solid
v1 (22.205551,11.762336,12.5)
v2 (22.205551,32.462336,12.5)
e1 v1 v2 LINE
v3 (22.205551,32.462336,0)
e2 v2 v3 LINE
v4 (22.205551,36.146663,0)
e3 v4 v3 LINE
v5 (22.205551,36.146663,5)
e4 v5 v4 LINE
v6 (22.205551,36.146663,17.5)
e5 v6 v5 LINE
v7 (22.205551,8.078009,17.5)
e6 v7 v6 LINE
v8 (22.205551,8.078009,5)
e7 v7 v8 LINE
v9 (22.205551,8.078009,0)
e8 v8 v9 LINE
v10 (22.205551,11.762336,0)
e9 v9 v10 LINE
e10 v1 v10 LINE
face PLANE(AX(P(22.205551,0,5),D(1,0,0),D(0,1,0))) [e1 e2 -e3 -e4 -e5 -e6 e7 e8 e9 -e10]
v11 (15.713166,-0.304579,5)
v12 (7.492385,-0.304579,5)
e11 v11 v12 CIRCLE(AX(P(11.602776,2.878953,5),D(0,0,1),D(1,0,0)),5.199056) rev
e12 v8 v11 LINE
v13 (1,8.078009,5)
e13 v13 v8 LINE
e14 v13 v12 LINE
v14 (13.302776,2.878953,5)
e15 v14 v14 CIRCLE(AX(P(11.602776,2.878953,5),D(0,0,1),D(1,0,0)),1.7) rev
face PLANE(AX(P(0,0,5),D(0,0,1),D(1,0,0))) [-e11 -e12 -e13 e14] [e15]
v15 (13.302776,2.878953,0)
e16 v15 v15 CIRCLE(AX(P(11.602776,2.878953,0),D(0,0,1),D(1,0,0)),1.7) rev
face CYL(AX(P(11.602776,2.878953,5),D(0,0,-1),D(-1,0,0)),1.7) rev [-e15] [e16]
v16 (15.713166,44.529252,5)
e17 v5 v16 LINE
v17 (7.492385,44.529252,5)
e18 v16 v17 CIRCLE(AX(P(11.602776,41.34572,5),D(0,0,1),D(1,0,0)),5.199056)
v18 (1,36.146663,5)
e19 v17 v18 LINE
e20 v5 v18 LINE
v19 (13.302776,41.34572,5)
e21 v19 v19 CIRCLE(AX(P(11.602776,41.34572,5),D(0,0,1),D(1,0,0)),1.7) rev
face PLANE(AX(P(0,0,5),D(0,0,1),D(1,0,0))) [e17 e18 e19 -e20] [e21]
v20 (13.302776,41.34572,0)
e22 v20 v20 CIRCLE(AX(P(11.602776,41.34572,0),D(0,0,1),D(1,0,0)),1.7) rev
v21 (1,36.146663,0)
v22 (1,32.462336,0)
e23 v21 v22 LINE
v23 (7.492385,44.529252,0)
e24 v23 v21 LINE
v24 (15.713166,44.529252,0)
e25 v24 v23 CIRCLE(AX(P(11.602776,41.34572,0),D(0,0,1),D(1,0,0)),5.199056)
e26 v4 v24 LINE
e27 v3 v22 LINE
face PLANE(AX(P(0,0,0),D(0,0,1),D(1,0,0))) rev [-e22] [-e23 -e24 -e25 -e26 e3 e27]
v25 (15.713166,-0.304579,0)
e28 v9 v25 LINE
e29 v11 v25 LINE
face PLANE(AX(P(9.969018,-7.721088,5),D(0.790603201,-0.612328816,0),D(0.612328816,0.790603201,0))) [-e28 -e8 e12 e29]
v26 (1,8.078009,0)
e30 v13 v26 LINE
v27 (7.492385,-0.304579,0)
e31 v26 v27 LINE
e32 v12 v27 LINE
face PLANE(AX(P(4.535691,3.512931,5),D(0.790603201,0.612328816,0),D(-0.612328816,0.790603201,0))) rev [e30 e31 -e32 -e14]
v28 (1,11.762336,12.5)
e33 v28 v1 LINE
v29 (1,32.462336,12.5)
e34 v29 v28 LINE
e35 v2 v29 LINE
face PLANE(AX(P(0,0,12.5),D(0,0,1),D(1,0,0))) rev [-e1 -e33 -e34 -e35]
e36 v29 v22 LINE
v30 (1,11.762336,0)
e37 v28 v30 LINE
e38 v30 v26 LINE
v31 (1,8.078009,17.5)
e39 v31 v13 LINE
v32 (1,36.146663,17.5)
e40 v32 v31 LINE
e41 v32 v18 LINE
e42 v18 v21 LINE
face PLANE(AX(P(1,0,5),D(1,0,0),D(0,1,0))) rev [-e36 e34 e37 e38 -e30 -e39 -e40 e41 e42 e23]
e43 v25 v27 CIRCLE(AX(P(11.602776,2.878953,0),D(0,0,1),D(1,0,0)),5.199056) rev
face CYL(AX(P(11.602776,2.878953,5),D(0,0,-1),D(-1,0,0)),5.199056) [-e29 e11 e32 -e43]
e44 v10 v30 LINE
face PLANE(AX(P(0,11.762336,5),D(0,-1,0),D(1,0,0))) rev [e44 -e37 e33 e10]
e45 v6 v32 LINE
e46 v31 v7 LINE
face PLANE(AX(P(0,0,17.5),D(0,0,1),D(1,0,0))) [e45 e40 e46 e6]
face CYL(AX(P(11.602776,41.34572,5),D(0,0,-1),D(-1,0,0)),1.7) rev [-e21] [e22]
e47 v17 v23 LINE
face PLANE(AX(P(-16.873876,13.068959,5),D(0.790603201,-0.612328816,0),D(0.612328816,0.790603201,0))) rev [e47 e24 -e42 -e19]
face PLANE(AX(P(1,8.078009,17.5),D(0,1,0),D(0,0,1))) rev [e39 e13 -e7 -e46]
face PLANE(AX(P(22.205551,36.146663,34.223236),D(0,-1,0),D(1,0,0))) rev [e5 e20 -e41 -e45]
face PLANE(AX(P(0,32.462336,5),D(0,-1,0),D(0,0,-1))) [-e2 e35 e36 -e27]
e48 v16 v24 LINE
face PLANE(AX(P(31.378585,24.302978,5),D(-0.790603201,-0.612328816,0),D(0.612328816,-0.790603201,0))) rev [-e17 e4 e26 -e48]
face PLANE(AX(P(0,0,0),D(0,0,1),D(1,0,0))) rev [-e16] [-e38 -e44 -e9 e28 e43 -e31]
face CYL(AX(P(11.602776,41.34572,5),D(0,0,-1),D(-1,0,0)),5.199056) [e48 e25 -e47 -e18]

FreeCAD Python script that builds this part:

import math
import FreeCAD as App
import Part
import Sketcher
from FreeCAD import Vector
Q = App.Units.Quantity

doc = App.newDocument("Part")
body = doc.addObject("PartDesign::Body", "Body")

sketch1 = doc.addObject("Sketcher::SketchObject", "Sketch")
body.addObject(sketch1)
sketch1.AttachmentSupport = (doc.XY_Plane, [""])
sketch1.MapMode = "FlatFace"
sketch1.addGeometry([
    Part.LineSegment(Vector(7.5, 44.5, 0), Vector(1, 36.1, 0)),
    Part.LineSegment(Vector(1, 36.1, 0), Vector(1, 32.5, 0)),
    Part.LineSegment(Vector(1, 32.5, 0), Vector(22.2, 32.5, 0)),
    Part.LineSegment(Vector(22.2, 32.5, 0), Vector(22.2, 36.1, 0)),
    Part.LineSegment(Vector(22.2, 36.1, 0), Vector(15.7, 44.5, 0)),
    Part.ArcOfCircle(Part.Circle(Vector(11.6, 41.3, 0), Vector(0, 0, 1), 5.2), math.radians(38), math.radians(142)),
    Part.Circle(Vector(11.6, 41.3, 0), Vector(0, 0, 1), 1.7),
], False)
sketch1.addConstraint([
    Sketcher.Constraint("Coincident", 0, 2, 1, 1),
    Sketcher.Constraint("Coincident", 1, 2, 2, 1),
    Sketcher.Constraint("Coincident", 2, 2, 3, 1),
    Sketcher.Constraint("Coincident", 3, 2, 4, 1),
    Sketcher.Constraint("Tangent", 4, 2, 5, 1),
    Sketcher.Constraint("Tangent", 5, 2, 0, 1),
    Sketcher.Constraint("Vertical", 1),
    Sketcher.Constraint("Horizontal", 2),
    Sketcher.Constraint("Vertical", 3),
    Sketcher.Constraint("Coincident", 6, 3, 5, 3),
    Sketcher.Constraint("Horizontal", 0, 2, 3, 2),
    Sketcher.Constraint("Horizontal", 4, 2, 5, 2),
    Sketcher.Constraint("Diameter", 6, Q("3.4 mm")),
    Sketcher.Constraint("DistanceX", -1, 1, 0, 2, Q("1 mm")),
    Sketcher.Constraint("Radius", 5, Q("5.199056 mm")),
    Sketcher.Constraint("DistanceX", 2, 1, 2, 2, Q("21.205551 mm")),
    Sketcher.Constraint("DistanceY", 1, 2, 1, 1, Q("3.684327 mm")),
    Sketcher.Constraint("DistanceY", -1, 1, 5, 3, Q("41.34572 mm")),
    Sketcher.Constraint("DistanceY", -1, 1, 4, 2, Q("44.529252 mm")),
])
pad1 = doc.addObject("PartDesign::Pad", "Pad")
body.addObject(pad1)
pad1.Profile = sketch1
pad1.Length = 5
body2 = doc.addObject("PartDesign::Body", "Body001")

sketch2 = doc.addObject("Sketcher::SketchObject", "Sketch001")
body2.addObject(sketch2)
sketch2.AttachmentSupport = (doc.getObject("XY_Plane001"), [""])
sketch2.MapMode = "FlatFace"
sketch2.addGeometry([
    Part.LineSegment(Vector(1, 11.8, 0), Vector(1, 8.1, 0)),
    Part.LineSegment(Vector(1, 8.1, 0), Vector(7.5, -0.3, 0)),
    Part.ArcOfCircle(Part.Circle(Vector(11.6, 2.9, 0), Vector(0, 0, 1), 5.2), math.radians(-142), math.radians(-38)),
    Part.LineSegment(Vector(15.7, -0.3, 0), Vector(22.2, 8.1, 0)),
    Part.LineSegment(Vector(22.2, 8.1, 0), Vector(22.2, 11.8, 0)),
    Part.LineSegment(Vector(22.2, 11.8, 0), Vector(1, 11.8, 0)),
    Part.Circle(Vector(11.6, 2.9, 0), Vector(0, 0, 1), 1.7),
], False)
sketch2.addConstraint([
    Sketcher.Constraint("Coincident", 0, 2, 1, 1),
    Sketcher.Constraint("Tangent", 1, 2, 2, 1),
    Sketcher.Constraint("Tangent", 2, 2, 3, 1),
    Sketcher.Constraint("Coincident", 3, 2, 4, 1),
    Sketcher.Constraint("Coincident", 4, 2, 5, 1),
    Sketcher.Constraint("Coincident", 5, 2, 0, 1),
    Sketcher.Constraint("Vertical", 0),
    Sketcher.Constraint("Vertical", 4),
    Sketcher.Constraint("Horizontal", 5),
    Sketcher.Constraint("Coincident", 6, 3, 2, 3),
    Sketcher.Constraint("Horizontal", 1, 2, 2, 2),
    Sketcher.Constraint("Horizontal", 0, 2, 3, 2),
    Sketcher.Constraint("Diameter", 6, Q("3.4 mm")),
    Sketcher.Constraint("DistanceX", -1, 1, 0, 2, Q("1 mm")),
    Sketcher.Constraint("Radius", 2, Q("5.199056 mm")),
    Sketcher.Constraint("DistanceX", 5, 2, 5, 1, Q("21.205551 mm")),
    Sketcher.Constraint("DistanceY", 0, 2, 0, 1, Q("3.684327 mm")),
    Sketcher.Constraint("DistanceY", -1, 1, 0, 2, Q("8.078009 mm")),
    Sketcher.Constraint("DistanceY", 1, 2, -1, 1, Q("0.304579 mm")),
])
pad2 = doc.addObject("PartDesign::Pad", "Pad001")
body2.addObject(pad2)
pad2.Profile = sketch2
pad2.Length = 5
body.AllowCompound = True
doc.recompute()

boolean = doc.addObject("PartDesign::Boolean", "Boolean")
body.addObject(boolean)
boolean.Type = "Fuse"
boolean.addObjects([body2])

sketch3 = doc.addObject("Sketcher::SketchObject", "Sketch002")
body.addObject(sketch3)
sketch3.AttachmentSupport = (doc.XY_Plane, [""])
sketch3.MapMode = "FlatFace"
sketch3.AttachmentOffset = App.Placement(Vector(0, 0, 5), App.Rotation())
sketch3.addGeometry([
    Part.LineSegment(Vector(1, 11.8, 0), Vector(1, 8.1, 0)),
    Part.LineSegment(Vector(1, 8.1, 0), Vector(22.2, 8.1, 0)),
    Part.LineSegment(Vector(22.2, 8.1, 0), Vector(22.2, 11.8, 0)),
    Part.LineSegment(Vector(22.2, 11.8, 0), Vector(1, 11.8, 0)),
    Part.LineSegment(Vector(1, 36.1, 0), Vector(1, 32.5, 0)),
    Part.LineSegment(Vector(1, 32.5, 0), Vector(22.2, 32.5, 0)),
    Part.LineSegment(Vector(22.2, 32.5, 0), Vector(22.2, 36.1, 0)),
    Part.LineSegment(Vector(22.2, 36.1, 0), Vector(1, 36.1, 0)),
], False)
sketch3.addConstraint([
    Sketcher.Constraint("Coincident", 0, 2, 1, 1),
    Sketcher.Constraint("Coincident", 1, 2, 2, 1),
    Sketcher.Constraint("Coincident", 2, 2, 3, 1),
    Sketcher.Constraint("Coincident", 3, 2, 0, 1),
    Sketcher.Constraint("Coincident", 4, 2, 5, 1),
    Sketcher.Constraint("Coincident", 5, 2, 6, 1),
    Sketcher.Constraint("Coincident", 6, 2, 7, 1),
    Sketcher.Constraint("Coincident", 7, 2, 4, 1),
    Sketcher.Constraint("Vertical", 0),
    Sketcher.Constraint("Horizontal", 1),
    Sketcher.Constraint("Vertical", 2),
    Sketcher.Constraint("Horizontal", 3),
    Sketcher.Constraint("Vertical", 4),
    Sketcher.Constraint("Horizontal", 5),
    Sketcher.Constraint("Vertical", 6),
    Sketcher.Constraint("Horizontal", 7),
    Sketcher.Constraint("Vertical", 3, 2, 4, 2),
    Sketcher.Constraint("Vertical", 2, 2, 5, 2),
    Sketcher.Constraint("Equal", 2, 4),
    Sketcher.Constraint("DistanceX", -1, 1, 0, 2, Q("1 mm")),
    Sketcher.Constraint("DistanceY", 3, 2, 4, 2, Q("20.7 mm")),
    Sketcher.Constraint("DistanceX", 1, 1, 1, 2, Q("21.205551 mm")),
    Sketcher.Constraint("DistanceY", 0, 2, 0, 1, Q("3.684327 mm")),
    Sketcher.Constraint("DistanceY", -1, 1, 0, 2, Q("8.078009 mm")),
])
pad3 = doc.addObject("PartDesign::Pad", "Pad002")
body.addObject(pad3)
pad3.Profile = sketch3
pad3.Length = 7.5

sketch4 = doc.addObject("Sketcher::SketchObject", "Sketch003")
body.addObject(sketch4)
sketch4.AttachmentSupport = (doc.XY_Plane, [""])
sketch4.MapMode = "FlatFace"
sketch4.AttachmentOffset = App.Placement(Vector(0, 0, 12.5), App.Rotation())
sketch4.addGeometry([
    Part.LineSegment(Vector(1, 36, 0), Vector(1, 8, 0)),
    Part.LineSegment(Vector(1, 8, 0), Vector(22, 8, 0)),
    Part.LineSegment(Vector(22, 8, 0), Vector(22, 36, 0)),
    Part.LineSegment(Vector(22, 36, 0), Vector(1, 36, 0)),
], False)
sketch4.addConstraint([
    Sketcher.Constraint("Coincident", 0, 2, 1, 1),
    Sketcher.Constraint("Coincident", 1, 2, 2, 1),
    Sketcher.Constraint("Coincident", 2, 2, 3, 1),
    Sketcher.Constraint("Coincident", 3, 2, 0, 1),
    Sketcher.Constraint("Vertical", 0),
    Sketcher.Constraint("Horizontal", 1),
    Sketcher.Constraint("Vertical", 2),
    Sketcher.Constraint("Horizontal", 3),
    Sketcher.Constraint("DistanceX", -1, 1, 0, 2, Q("1 mm")),
    Sketcher.Constraint("DistanceX", 1, 1, 1, 2, Q("21.205551 mm")),
    Sketcher.Constraint("DistanceY", 0, 2, 0, 1, Q("28.068654 mm")),
    Sketcher.Constraint("DistanceY", -1, 1, 0, 2, Q("8.078009 mm")),
])
pad4 = doc.addObject("PartDesign::Pad", "Pad003")
body.addObject(pad4)
pad4.Profile = sketch4
pad4.Length = 5

doc.recompute()
